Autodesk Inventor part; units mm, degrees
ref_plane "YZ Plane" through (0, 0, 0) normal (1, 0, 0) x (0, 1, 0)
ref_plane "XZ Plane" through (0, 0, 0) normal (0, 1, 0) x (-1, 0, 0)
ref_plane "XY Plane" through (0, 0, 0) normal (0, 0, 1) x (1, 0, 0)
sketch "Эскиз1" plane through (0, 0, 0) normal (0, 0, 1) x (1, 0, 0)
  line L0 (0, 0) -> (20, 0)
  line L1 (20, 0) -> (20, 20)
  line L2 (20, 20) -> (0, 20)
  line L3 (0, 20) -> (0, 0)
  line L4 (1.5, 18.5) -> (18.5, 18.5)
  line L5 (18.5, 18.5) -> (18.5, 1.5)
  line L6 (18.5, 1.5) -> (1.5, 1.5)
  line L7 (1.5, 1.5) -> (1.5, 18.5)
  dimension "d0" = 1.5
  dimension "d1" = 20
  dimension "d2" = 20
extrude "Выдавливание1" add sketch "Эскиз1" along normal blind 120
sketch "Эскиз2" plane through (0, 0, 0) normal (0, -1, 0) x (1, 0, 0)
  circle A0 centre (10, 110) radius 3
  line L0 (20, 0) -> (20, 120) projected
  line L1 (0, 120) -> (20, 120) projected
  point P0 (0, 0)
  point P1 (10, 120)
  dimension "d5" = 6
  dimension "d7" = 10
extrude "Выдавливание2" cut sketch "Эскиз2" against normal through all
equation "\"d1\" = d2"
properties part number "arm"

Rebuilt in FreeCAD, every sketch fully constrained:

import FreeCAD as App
import Part
import Sketcher

V = App.Vector
Q = App.Units.Quantity

doc = App.newDocument("Part")
body = doc.addObject("PartDesign::Body", "Body")

sketch1 = body.newObject("Sketcher::SketchObject", "Sketch")
sketch1.AttachmentSupport = (doc.getObject("XY_Plane"), [""])
sketch1.MapMode = "FlatFace"
sketch1.addGeometry([
    Part.LineSegment(V(0, 20, 0), V(0, 0, 0)),
    Part.LineSegment(V(0, 0, 0), V(20, 0, 0)),
    Part.LineSegment(V(20, 0, 0), V(20, 20, 0)),
    Part.LineSegment(V(20, 20, 0), V(0, 20, 0)),
    Part.LineSegment(V(1.5, 1.5, 0), V(1.5, 18.5, 0)),
    Part.LineSegment(V(1.5, 18.5, 0), V(18.5, 18.5, 0)),
    Part.LineSegment(V(18.5, 18.5, 0), V(18.5, 1.5, 0)),
    Part.LineSegment(V(18.5, 1.5, 0), V(1.5, 1.5, 0)),
], False)
sketch1.addConstraint([
    Sketcher.Constraint("Coincident", 0, 2, 1, 1),
    Sketcher.Constraint("Coincident", 1, 2, 2, 1),
    Sketcher.Constraint("Coincident", 2, 2, 3, 1),
    Sketcher.Constraint("Coincident", 3, 2, 0, 1),
    Sketcher.Constraint("Coincident", 4, 2, 5, 1),
    Sketcher.Constraint("Coincident", 5, 2, 6, 1),
    Sketcher.Constraint("Coincident", 6, 2, 7, 1),
    Sketcher.Constraint("Coincident", 7, 2, 4, 1),
    Sketcher.Constraint("Vertical", 0),
    Sketcher.Constraint("Horizontal", 1),
    Sketcher.Constraint("Vertical", 2),
    Sketcher.Constraint("Horizontal", 3),
    Sketcher.Constraint("Vertical", 4),
    Sketcher.Constraint("Horizontal", 5),
    Sketcher.Constraint("Vertical", 6),
    Sketcher.Constraint("Horizontal", 7),
    Sketcher.Constraint("Coincident", 0, 2, -1, 1),
    Sketcher.Constraint("Equal", 3, 0),
    Sketcher.Constraint("Equal", 7, 4),
    Sketcher.Constraint("DistanceX", 1, 1, 1, 2, Q("20 mm")),
    Sketcher.Constraint("DistanceX", -1, 1, 4, 2, Q("1.5 mm")),
    Sketcher.Constraint("DistanceY", -1, 1, 6, 2, Q("1.5 mm")),
    Sketcher.Constraint("DistanceY", 4, 2, 3, 2, Q("1.5 mm")),
])
pad1 = body.newObject("PartDesign::Pad", "Pad")
pad1.Profile = sketch1
pad1.Length = 120

sketch2 = body.newObject("Sketcher::SketchObject", "Sketch001")
sketch2.AttachmentSupport = (doc.getObject("XZ_Plane"), [""])
sketch2.MapMode = "FlatFace"
sketch2.addGeometry(Part.Circle(V(10, 110, 0), V(0, 0, 1), 3), False)
sketch2.addConstraint([
    Sketcher.Constraint("Diameter", 0, Q("6 mm")),
    Sketcher.Constraint("DistanceX", -1, 1, 0, 3, Q("10 mm")),
    Sketcher.Constraint("DistanceY", -1, 1, 0, 3, Q("110 mm")),
])
pocket1 = body.newObject("PartDesign::Pocket", "Pocket")
pocket1.Profile = sketch2
pocket1.Type = "ThroughAll"

doc.recompute()
